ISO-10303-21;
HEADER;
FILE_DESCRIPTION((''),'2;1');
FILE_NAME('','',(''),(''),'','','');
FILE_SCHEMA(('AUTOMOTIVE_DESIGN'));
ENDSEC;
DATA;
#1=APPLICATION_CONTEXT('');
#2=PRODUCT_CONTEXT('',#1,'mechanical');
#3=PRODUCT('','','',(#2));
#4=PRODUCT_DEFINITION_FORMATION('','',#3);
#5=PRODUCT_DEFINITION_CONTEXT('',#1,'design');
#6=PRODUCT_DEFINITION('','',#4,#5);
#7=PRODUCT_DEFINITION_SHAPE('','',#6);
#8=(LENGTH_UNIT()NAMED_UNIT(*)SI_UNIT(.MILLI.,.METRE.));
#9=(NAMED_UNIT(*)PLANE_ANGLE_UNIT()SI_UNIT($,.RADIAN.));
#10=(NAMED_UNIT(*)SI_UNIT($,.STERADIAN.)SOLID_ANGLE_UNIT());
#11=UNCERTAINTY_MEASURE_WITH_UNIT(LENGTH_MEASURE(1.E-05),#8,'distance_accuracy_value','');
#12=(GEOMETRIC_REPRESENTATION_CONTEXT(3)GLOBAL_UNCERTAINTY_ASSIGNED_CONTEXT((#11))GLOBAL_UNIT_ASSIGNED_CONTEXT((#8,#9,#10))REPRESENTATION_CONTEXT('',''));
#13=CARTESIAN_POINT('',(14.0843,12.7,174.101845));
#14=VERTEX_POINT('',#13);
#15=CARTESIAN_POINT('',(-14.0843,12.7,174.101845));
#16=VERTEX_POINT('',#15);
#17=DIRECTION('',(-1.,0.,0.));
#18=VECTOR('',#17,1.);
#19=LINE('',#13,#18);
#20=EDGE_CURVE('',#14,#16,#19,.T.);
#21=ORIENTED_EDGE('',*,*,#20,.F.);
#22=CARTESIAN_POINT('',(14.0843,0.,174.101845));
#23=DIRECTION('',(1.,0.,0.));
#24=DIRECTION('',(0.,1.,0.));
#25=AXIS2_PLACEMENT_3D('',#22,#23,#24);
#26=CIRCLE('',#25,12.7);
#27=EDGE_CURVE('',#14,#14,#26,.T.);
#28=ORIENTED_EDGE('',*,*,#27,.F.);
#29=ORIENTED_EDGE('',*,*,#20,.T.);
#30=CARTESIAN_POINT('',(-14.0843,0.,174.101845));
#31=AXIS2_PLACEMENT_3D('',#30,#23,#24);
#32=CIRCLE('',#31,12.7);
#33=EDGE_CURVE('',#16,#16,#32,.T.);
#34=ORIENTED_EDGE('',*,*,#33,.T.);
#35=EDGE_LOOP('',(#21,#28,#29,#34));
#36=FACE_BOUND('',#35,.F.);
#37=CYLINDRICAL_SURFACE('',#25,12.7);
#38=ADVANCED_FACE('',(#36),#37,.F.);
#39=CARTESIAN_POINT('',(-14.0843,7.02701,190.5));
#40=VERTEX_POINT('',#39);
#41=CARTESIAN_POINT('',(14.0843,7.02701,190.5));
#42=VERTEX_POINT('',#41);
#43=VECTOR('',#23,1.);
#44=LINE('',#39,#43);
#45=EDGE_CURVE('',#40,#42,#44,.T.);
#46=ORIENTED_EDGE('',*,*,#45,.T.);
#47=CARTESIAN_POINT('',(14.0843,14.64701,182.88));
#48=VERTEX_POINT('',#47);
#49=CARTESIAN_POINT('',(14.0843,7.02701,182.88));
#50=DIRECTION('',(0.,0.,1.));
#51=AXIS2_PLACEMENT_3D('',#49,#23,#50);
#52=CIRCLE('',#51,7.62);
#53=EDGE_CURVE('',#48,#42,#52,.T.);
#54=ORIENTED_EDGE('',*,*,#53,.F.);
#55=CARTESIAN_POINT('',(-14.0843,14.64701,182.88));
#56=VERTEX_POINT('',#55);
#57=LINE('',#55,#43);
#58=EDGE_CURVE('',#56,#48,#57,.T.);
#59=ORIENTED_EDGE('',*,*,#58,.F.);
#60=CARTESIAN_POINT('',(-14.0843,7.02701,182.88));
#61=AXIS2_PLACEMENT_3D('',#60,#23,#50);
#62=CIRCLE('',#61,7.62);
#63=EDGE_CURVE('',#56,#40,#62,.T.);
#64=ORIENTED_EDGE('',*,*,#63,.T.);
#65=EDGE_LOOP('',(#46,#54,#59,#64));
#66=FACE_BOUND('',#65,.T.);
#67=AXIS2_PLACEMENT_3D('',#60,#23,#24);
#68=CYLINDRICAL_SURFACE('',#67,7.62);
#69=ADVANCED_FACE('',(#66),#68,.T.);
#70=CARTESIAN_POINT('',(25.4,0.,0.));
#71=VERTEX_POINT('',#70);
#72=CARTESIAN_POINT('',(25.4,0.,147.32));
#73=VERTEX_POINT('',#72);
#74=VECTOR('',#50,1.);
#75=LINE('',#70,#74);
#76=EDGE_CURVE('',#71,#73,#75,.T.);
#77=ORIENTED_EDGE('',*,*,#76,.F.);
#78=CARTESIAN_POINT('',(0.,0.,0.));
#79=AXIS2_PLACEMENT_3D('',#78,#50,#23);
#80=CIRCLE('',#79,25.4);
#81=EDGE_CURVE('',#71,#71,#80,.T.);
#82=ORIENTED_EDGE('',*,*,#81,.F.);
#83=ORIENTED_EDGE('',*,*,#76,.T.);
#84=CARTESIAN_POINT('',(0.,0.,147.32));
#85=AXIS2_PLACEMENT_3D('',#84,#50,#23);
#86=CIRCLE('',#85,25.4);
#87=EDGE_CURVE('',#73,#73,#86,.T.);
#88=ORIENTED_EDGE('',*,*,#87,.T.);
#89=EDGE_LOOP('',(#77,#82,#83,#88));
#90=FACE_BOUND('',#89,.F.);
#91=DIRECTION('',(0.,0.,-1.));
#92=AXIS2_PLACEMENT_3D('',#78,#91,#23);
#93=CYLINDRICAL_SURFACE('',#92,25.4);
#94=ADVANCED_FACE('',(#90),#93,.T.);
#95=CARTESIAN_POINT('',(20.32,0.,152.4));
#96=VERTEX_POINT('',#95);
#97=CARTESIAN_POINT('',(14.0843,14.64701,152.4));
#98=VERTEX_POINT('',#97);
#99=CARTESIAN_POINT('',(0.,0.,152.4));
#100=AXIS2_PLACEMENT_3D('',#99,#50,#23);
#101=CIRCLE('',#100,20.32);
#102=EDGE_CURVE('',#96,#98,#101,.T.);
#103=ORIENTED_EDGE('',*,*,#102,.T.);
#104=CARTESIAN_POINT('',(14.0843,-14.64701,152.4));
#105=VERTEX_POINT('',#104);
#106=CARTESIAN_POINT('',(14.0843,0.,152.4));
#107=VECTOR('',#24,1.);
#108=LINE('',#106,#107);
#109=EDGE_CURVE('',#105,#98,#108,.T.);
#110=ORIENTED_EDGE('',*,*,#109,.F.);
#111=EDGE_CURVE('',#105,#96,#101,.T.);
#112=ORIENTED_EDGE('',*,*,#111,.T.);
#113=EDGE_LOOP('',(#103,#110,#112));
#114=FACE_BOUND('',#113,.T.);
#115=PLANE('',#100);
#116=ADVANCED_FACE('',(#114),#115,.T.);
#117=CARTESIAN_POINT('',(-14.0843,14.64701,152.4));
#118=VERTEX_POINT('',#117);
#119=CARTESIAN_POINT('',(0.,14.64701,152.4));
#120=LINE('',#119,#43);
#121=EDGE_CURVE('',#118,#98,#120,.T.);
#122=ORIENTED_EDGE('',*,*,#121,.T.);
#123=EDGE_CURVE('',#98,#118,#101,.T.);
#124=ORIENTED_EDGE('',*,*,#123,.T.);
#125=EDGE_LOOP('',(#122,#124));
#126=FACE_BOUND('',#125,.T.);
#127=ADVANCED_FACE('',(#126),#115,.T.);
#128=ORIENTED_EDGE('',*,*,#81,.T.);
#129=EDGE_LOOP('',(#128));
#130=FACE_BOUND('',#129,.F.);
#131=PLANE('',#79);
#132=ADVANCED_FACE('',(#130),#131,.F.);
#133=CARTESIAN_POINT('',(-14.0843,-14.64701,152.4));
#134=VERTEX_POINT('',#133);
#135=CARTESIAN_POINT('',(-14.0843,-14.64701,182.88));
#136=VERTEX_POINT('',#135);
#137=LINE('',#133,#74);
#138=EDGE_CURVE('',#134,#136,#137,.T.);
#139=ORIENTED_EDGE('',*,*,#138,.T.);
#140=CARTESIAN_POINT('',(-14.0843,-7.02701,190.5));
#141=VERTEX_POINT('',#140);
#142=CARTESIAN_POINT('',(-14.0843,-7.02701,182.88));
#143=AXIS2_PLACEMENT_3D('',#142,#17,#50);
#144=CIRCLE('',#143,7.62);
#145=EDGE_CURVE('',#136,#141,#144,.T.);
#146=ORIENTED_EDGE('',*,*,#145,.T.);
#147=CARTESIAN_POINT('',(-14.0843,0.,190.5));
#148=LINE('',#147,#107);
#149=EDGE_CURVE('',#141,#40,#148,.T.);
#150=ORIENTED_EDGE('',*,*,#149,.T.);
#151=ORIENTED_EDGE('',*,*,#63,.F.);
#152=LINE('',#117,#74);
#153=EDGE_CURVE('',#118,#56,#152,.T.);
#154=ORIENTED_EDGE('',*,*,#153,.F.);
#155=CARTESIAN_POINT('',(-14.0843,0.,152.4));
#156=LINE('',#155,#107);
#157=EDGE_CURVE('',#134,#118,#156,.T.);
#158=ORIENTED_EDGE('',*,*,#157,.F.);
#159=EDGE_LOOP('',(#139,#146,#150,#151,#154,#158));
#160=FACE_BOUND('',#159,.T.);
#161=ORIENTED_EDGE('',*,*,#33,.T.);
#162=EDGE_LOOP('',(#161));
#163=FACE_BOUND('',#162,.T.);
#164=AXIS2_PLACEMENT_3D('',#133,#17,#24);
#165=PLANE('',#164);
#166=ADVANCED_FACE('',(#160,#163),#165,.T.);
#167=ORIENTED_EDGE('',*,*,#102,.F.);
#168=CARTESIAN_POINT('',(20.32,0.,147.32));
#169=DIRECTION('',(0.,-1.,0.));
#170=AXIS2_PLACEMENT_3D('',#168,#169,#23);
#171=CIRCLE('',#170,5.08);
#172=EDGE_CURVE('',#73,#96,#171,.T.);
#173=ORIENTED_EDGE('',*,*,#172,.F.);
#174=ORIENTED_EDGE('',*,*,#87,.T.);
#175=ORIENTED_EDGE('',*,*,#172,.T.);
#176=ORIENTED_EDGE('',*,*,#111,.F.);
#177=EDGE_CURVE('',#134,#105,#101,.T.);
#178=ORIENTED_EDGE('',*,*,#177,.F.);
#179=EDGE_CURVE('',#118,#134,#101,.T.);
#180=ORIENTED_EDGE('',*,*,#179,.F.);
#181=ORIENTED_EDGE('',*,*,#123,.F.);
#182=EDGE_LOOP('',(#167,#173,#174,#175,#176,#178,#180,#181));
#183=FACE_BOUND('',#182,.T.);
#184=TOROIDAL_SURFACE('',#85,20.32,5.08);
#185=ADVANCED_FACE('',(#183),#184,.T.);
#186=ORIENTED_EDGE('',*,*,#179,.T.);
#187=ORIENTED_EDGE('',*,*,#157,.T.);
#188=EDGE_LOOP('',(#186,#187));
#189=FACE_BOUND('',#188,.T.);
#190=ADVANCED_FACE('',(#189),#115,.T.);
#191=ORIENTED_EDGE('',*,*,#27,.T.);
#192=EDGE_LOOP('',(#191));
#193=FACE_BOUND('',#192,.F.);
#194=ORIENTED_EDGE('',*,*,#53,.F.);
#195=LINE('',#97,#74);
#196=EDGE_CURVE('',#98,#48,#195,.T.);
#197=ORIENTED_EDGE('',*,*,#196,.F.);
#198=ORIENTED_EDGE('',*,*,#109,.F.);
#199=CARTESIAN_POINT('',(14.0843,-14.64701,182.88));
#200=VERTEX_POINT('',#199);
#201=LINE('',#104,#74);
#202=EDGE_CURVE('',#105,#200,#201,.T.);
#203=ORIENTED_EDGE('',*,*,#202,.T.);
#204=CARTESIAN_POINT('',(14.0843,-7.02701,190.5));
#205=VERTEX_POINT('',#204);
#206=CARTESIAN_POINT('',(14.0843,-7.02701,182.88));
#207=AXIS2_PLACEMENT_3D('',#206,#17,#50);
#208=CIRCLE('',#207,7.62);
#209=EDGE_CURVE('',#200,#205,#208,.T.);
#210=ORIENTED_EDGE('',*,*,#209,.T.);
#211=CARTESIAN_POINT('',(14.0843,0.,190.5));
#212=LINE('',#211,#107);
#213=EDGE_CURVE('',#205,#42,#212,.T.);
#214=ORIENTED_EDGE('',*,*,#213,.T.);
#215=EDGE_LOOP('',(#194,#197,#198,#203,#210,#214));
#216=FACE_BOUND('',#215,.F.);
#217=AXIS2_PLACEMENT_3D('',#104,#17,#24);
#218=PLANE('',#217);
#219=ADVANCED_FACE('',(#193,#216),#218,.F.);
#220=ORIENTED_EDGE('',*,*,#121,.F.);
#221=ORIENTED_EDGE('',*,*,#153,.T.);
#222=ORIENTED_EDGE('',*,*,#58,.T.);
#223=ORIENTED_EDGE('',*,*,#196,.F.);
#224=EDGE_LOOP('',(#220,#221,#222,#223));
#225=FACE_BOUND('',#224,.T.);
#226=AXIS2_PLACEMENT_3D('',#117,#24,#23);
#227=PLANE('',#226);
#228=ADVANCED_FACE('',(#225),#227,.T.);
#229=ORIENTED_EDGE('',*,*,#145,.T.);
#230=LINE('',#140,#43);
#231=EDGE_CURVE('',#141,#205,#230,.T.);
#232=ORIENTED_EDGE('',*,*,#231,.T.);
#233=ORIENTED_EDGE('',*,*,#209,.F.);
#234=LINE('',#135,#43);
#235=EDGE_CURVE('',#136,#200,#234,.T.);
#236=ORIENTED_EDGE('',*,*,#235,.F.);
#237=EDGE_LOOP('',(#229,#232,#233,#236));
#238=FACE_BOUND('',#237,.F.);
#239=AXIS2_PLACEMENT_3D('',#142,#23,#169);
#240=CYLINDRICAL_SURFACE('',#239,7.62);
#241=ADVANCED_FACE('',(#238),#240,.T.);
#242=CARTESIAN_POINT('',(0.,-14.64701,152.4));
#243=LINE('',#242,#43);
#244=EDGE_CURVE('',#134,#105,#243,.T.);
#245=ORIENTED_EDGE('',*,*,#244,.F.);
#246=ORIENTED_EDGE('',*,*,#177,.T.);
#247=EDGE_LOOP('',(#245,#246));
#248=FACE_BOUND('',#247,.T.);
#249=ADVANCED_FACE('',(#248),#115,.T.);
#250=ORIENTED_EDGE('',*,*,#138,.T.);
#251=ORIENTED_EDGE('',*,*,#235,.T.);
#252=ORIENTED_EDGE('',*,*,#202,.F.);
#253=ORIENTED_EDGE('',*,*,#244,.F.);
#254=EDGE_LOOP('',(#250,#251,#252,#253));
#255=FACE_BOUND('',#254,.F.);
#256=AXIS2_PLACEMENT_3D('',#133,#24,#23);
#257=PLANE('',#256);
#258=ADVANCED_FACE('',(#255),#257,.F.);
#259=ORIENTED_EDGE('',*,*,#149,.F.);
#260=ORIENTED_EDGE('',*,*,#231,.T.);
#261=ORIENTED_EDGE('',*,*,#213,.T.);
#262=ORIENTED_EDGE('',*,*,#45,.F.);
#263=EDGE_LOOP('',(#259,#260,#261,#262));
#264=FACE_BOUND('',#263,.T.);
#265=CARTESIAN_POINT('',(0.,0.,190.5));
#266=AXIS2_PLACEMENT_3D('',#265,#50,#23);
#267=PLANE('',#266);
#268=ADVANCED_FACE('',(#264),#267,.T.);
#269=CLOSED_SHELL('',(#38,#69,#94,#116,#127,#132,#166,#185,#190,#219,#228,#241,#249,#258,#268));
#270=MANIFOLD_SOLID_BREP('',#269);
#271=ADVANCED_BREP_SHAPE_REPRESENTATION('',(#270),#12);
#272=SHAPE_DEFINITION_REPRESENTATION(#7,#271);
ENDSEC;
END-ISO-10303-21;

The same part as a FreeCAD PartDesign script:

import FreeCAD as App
import Part
import Sketcher
from FreeCAD import Vector
Q = App.Units.Quantity


def edges_at(feature, points):
    """Names of the edges that pass closest to the given points."""
    edges = feature.Shape.Edges
    near = lambda p: min(range(len(edges)), key=lambda i: edges[i].distToShape(Part.Vertex(*p))[0])
    return sorted({f"Edge{near(p) + 1}" for p in points})


def add_polygon(sketch, points):
    """Adds a closed chain of lines whose ends are joined by coincident constraints."""
    first, n = sketch.GeometryCount, len(points)
    for a, b in zip(points, points[1:] + points[:1]):
        sketch.addGeometry(Part.LineSegment(App.Vector(*a, 0), App.Vector(*b, 0)), False)
    for i in range(n):
        sketch.addConstraint(Sketcher.Constraint("Coincident", first + i, 2, first + (i + 1) % n, 1))

doc = App.newDocument("Part")
params = doc.addObject("Spreadsheet::Sheet", "Params")
for row, (alias, value) in enumerate([
    ("sketch1_diameter", "2 in"),
    ("pad1_length", "6 in"),
    ("fillet_radius", "0.2 in"),
    ("sketch2_width", "1.109 in"),
    ("pad2_length", "1.5 in"),
    ("fillet2_radius", "0.3 in"),
    ("sketch3_diameter", "1 in"),
], start=1):
    params.set(f"A{row}", alias)
    params.set(f"B{row}", "=" + value)
    params.setAlias(f"B{row}", alias)

body = doc.addObject("PartDesign::Body", "Body")

# Sketch on XY plane
sketch1 = doc.addObject("Sketcher::SketchObject", "Sketch")
body.addObject(sketch1)
sketch1.AttachmentSupport = (doc.XY_Plane, [""])
sketch1.MapMode = "FlatFace"
sketch1.addGeometry(Part.Circle(Vector(0, 0, 0), Vector(0, 0, 1), 25.4), False)
sketch1.addConstraint([
    Sketcher.Constraint("Coincident", 0, 3, -1, 1),
    Sketcher.Constraint("Diameter", 0, Q("2 in")),
])
sketch1.setExpression("Constraints[1]", "Params.sketch1_diameter")
pad1 = doc.addObject("PartDesign::Pad", "Pad")
body.addObject(pad1)
pad1.Profile = sketch1
pad1.setExpression("Length", "Params.pad1_length")
doc.recompute()

fillet = doc.addObject("PartDesign::Fillet", "Fillet")
body.addObject(fillet)
fillet.Base = (pad1, edges_at(pad1, [(-25.4, 0, 152.4)]))
fillet.setExpression("Radius", "Params.fillet_radius")

# Sketch on XY plane
sketch2 = doc.addObject("Sketcher::SketchObject", "Sketch001")
body.addObject(sketch2)
sketch2.AttachmentSupport = (doc.XY_Plane, [""])
sketch2.MapMode = "FlatFace"
sketch2.AttachmentOffset = App.Placement(Vector(0, 0, 6 * 25.4), App.Rotation())
add_polygon(sketch2, [(-14.0843, 14.64701), (-14.0843, -14.64701), (14.0843, -14.64701), (14.0843, 14.64701)])  # lines 0-3
sketch2.addConstraint([
    Sketcher.Constraint("Vertical", 0),
    Sketcher.Constraint("Horizontal", 1),
    Sketcher.Constraint("Vertical", 2),
    Sketcher.Constraint("Horizontal", 3),
    Sketcher.Constraint("Symmetric", 0, 2, 2, 2, -1, 1),
    Sketcher.Constraint("DistanceX", 1, 1, 1, 2, Q("1.109 in")),
    Sketcher.Constraint("DistanceY", 0, 2, 0, 1, Q("29.29402 mm")),
])
sketch2.setExpression("Constraints[9]", "Params.sketch2_width")
pad2 = doc.addObject("PartDesign::Pad", "Pad001")
body.addObject(pad2)
pad2.Profile = sketch2
pad2.setExpression("Length", "Params.pad2_length")
doc.recompute()

fillet2 = doc.addObject("PartDesign::Fillet", "Fillet001")
body.addObject(fillet2)
fillet2.Base = (pad2, edges_at(pad2, [(0, -14.647, 190.5), (0, 14.647, 190.5)]))
fillet2.setExpression("Radius", "Params.fillet2_radius")

# Sketch on YZ plane
sketch3 = doc.addObject("Sketcher::SketchObject", "Sketch002")
body.addObject(sketch3)
sketch3.AttachmentSupport = (doc.YZ_Plane, [""])
sketch3.MapMode = "FlatFace"
sketch3.AttachmentOffset = App.Placement(Vector(0, 0, 0.5545 * 25.4), App.Rotation())
sketch3.addGeometry(Part.Circle(Vector(0, 174.101845, 0), Vector(0, 0, 1), 12.7), False)
sketch3.addConstraint([
    Sketcher.Constraint("PointOnObject", 0, 3, -2),
    Sketcher.Constraint("Diameter", 0, Q("1 in")),
    Sketcher.Constraint("DistanceY", -1, 1, 0, 3, Q("174.101845 mm")),
])
sketch3.setExpression("Constraints[1]", "Params.sketch3_diameter")
pocket1 = doc.addObject("PartDesign::Pocket", "Pocket")
body.addObject(pocket1)
pocket1.Profile = sketch3
pocket1.Type = "ThroughAll"

doc.recompute()
